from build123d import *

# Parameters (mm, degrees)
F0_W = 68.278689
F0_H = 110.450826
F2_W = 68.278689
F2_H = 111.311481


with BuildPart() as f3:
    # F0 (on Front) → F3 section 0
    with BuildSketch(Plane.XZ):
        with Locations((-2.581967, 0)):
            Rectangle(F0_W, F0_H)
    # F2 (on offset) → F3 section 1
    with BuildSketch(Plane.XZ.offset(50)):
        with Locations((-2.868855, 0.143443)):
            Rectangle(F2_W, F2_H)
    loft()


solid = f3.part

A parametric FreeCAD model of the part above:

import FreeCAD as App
import Part
import Sketcher

V = App.Vector

doc = App.newDocument("Part")
body = doc.addObject("PartDesign::Body", "Body")

# Sketch on XZ plane
sketch1 = doc.addObject("Sketcher::SketchObject", "Sketch")
body.addObject(sketch1)
sketch1.AttachmentSupport = (doc.XZ_Plane, [""])
sketch1.MapMode = "FlatFace"
sketch1.addGeometry([
    Part.LineSegment(V(-37, 55, 0), V(-37, -55, 0)),
    Part.LineSegment(V(-37, -55, 0), V(32, -55, 0)),
    Part.LineSegment(V(32, -55, 0), V(32, 55, 0)),
    Part.LineSegment(V(32, 55, 0), V(-37, 55, 0)),
], False)
sketch1.addConstraint([
    Sketcher.Constraint("Coincident", 0, 2, 1, 1),
    Sketcher.Constraint("Coincident", 1, 2, 2, 1),
    Sketcher.Constraint("Coincident", 2, 2, 3, 1),
    Sketcher.Constraint("Coincident", 3, 2, 0, 1),
    Sketcher.Constraint("Vertical", 0),
    Sketcher.Constraint("Horizontal", 1),
    Sketcher.Constraint("Vertical", 2),
    Sketcher.Constraint("Horizontal", 3),
    Sketcher.Constraint("DistanceX", 1, 1, 1, 2, 68.278689),
    Sketcher.Constraint("DistanceY", 0, 2, 0, 1, 110.450826),
    Sketcher.Constraint("DistanceX", 0, 2, -1, 1, 36.721311),
    Sketcher.Constraint("DistanceY", 0, 2, -1, 1, 55.225413),
])

# Sketch on XZ plane
sketch2 = doc.addObject("Sketcher::SketchObject", "Sketch001")
body.addObject(sketch2)
sketch2.AttachmentSupport = (doc.XZ_Plane, [""])
sketch2.MapMode = "FlatFace"
sketch2.AttachmentOffset = App.Placement(V(0, 0, 50), App.Rotation())
sketch2.addGeometry([
    Part.LineSegment(V(-37, 56, 0), V(-37, -56, 0)),
    Part.LineSegment(V(-37, -56, 0), V(31, -56, 0)),
    Part.LineSegment(V(31, -56, 0), V(31, 56, 0)),
    Part.LineSegment(V(31, 56, 0), V(-37, 56, 0)),
], False)
sketch2.addConstraint([
    Sketcher.Constraint("Coincident", 0, 2, 1, 1),
    Sketcher.Constraint("Coincident", 1, 2, 2, 1),
    Sketcher.Constraint("Coincident", 2, 2, 3, 1),
    Sketcher.Constraint("Coincident", 3, 2, 0, 1),
    Sketcher.Constraint("Vertical", 0),
    Sketcher.Constraint("Horizontal", 1),
    Sketcher.Constraint("Vertical", 2),
    Sketcher.Constraint("Horizontal", 3),
    Sketcher.Constraint("DistanceX", 1, 1, 1, 2, 68.278689),
    Sketcher.Constraint("DistanceY", 0, 2, 0, 1, 111.311481),
    Sketcher.Constraint("DistanceX", 0, 2, -1, 1, 37.0082),
    Sketcher.Constraint("DistanceY", 0, 2, -1, 1, 55.512298),
])

additiveloft = doc.addObject("PartDesign::AdditiveLoft", "AdditiveLoft")
body.addObject(additiveloft)
additiveloft.Profile = sketch1
additiveloft.Sections = [sketch2]

doc.recompute()
